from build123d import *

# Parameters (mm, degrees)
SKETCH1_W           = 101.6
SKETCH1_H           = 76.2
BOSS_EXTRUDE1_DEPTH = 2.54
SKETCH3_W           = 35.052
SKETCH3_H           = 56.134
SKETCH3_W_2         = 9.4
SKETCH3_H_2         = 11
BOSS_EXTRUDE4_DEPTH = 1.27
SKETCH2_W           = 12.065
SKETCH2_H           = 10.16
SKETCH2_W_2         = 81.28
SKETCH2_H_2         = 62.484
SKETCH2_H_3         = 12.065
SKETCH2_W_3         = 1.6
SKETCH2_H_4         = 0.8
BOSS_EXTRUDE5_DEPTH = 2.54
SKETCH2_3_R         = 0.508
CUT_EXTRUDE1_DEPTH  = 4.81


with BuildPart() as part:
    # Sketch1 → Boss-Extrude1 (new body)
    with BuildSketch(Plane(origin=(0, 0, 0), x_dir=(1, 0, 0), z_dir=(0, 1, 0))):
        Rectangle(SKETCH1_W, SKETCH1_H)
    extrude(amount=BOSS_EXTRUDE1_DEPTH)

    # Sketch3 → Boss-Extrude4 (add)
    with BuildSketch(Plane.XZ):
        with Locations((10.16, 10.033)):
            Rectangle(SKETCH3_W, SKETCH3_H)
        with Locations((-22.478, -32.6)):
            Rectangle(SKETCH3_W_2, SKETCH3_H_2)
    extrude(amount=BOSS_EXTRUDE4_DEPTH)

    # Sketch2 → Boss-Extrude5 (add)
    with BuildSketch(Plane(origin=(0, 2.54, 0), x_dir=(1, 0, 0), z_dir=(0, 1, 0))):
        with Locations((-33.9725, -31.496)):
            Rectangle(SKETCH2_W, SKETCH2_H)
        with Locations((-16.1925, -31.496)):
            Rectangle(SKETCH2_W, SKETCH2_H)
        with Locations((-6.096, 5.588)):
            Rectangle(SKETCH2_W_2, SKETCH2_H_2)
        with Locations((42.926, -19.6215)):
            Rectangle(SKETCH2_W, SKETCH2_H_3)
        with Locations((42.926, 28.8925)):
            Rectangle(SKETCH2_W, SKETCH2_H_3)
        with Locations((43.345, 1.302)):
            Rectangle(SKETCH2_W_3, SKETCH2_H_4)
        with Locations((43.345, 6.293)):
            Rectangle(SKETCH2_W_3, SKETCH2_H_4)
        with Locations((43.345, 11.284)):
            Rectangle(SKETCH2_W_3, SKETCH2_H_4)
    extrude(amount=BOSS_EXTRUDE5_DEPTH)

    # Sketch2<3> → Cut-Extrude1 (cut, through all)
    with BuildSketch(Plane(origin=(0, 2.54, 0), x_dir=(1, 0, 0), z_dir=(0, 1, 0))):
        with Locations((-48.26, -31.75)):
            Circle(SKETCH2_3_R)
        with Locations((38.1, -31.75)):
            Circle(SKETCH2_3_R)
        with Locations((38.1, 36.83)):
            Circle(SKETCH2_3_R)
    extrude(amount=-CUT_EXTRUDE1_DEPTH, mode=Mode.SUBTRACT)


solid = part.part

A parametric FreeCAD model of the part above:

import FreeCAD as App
import Part
import Sketcher

V = App.Vector
Q = App.Units.Quantity

doc = App.newDocument("Part")
body = doc.addObject("PartDesign::Body", "Body")

sketch1 = body.newObject("Sketcher::SketchObject", "Sketch")
sketch1.AttachmentSupport = (doc.getObject("XZ_Plane"), [""])
sketch1.MapMode = "FlatFace"
sketch1.addGeometry([
    Part.LineSegment(V(-51, -38, 0), V(-51, 38, 0)),
    Part.LineSegment(V(-51, 38, 0), V(51, 38, 0)),
    Part.LineSegment(V(51, 38, 0), V(51, -38, 0)),
    Part.LineSegment(V(51, -38, 0), V(-51, -38, 0)),
], False)
sketch1.addConstraint([
    Sketcher.Constraint("Coincident", 0, 2, 1, 1),
    Sketcher.Constraint("Coincident", 1, 2, 2, 1),
    Sketcher.Constraint("Coincident", 2, 2, 3, 1),
    Sketcher.Constraint("Coincident", 3, 2, 0, 1),
    Sketcher.Constraint("Vertical", 0),
    Sketcher.Constraint("Horizontal", 1),
    Sketcher.Constraint("Vertical", 2),
    Sketcher.Constraint("Horizontal", 3),
    Sketcher.Constraint("Symmetric", 0, 2, 2, 2, -1, 1),
    Sketcher.Constraint("DistanceX", 1, 1, 1, 2, Q("4 in")),
    Sketcher.Constraint("DistanceY", 0, 1, 0, 2, Q("3 in")),
])
pad1 = body.newObject("PartDesign::Pad", "Pad")
pad1.Profile = sketch1
pad1.Length = Q("0.1 in")
pad1.Reversed = True

sketch2 = body.newObject("Sketcher::SketchObject", "Sketch001")
sketch2.AttachmentSupport = (doc.getObject("XZ_Plane"), [""])
sketch2.MapMode = "FlatFace"
sketch2.addGeometry([
    Part.LineSegment(V(-7, 38, 0), V(-7, -18, 0)),
    Part.LineSegment(V(-7, -18, 0), V(28, -18, 0)),
    Part.LineSegment(V(28, -18, 0), V(28, 38, 0)),
    Part.LineSegment(V(28, 38, 0), V(-7, 38, 0)),
    Part.LineSegment(V(-27, -27, 0), V(-27, -38, 0)),
    Part.LineSegment(V(-27, -38, 0), V(-18, -38, 0)),
    Part.LineSegment(V(-18, -38, 0), V(-18, -27, 0)),
    Part.LineSegment(V(-18, -27, 0), V(-27, -27, 0)),
], False)
sketch2.addConstraint([
    Sketcher.Constraint("Coincident", 0, 2, 1, 1),
    Sketcher.Constraint("Coincident", 1, 2, 2, 1),
    Sketcher.Constraint("Coincident", 2, 2, 3, 1),
    Sketcher.Constraint("Coincident", 3, 2, 0, 1),
    Sketcher.Constraint("Coincident", 4, 2, 5, 1),
    Sketcher.Constraint("Coincident", 5, 2, 6, 1),
    Sketcher.Constraint("Coincident", 6, 2, 7, 1),
    Sketcher.Constraint("Coincident", 7, 2, 4, 1),
    Sketcher.Constraint("Vertical", 0),
    Sketcher.Constraint("Horizontal", 1),
    Sketcher.Constraint("Vertical", 2),
    Sketcher.Constraint("Horizontal", 3),
    Sketcher.Constraint("Vertical", 4),
    Sketcher.Constraint("Horizontal", 5),
    Sketcher.Constraint("Vertical", 6),
    Sketcher.Constraint("Horizontal", 7),
    Sketcher.Constraint("DistanceY", 4, 2, 3, 2, Q("3 in")),
    Sketcher.Constraint("DistanceX", 1, 1, 1, 2, Q("1.38 in")),
    Sketcher.Constraint("DistanceY", 0, 2, 0, 1, Q("2.21 in")),
    Sketcher.Constraint("DistanceY", -1, 1, 2, 2, Q("1.5 in")),
    Sketcher.Constraint("DistanceX", 0, 2, -1, 1, Q("0.29 in")),
    Sketcher.Constraint("DistanceX", 4, 2, -1, 1, Q("1.07 in")),
    Sketcher.Constraint("DistanceX", 5, 1, 5, 2, Q("9.4 mm")),
    Sketcher.Constraint("DistanceY", 4, 2, 4, 1, Q("11 mm")),
])
pad2 = body.newObject("PartDesign::Pad", "Pad001")
pad2.Profile = sketch2
pad2.Length = Q("0.05 in")

sketch3 = body.newObject("Sketcher::SketchObject", "Sketch002")
sketch3.AttachmentSupport = (doc.getObject("XZ_Plane"), [""])
sketch3.MapMode = "FlatFace"
sketch3.AttachmentOffset = App.Placement(V(0, 0, -0.1 * 25.4), App.Rotation())
sketch3.addGeometry([
    Part.LineSegment(V(-40, 26.4, 0), V(-40, 36.6, 0)),
    Part.LineSegment(V(-40, 36.6, 0), V(-27.9, 36.6, 0)),
    Part.LineSegment(V(-27.9, 36.6, 0), V(-27.9, 26.4, 0)),
    Part.LineSegment(V(-27.9, 26.4, 0), V(-40, 26.4, 0)),
    Part.LineSegment(V(-22.2, 26.4, 0), V(-22.2, 36.6, 0)),
    Part.LineSegment(V(-22.2, 36.6, 0), V(-10.2, 36.6, 0)),
    Part.LineSegment(V(-10.2, 36.6, 0), V(-10.2, 26.4, 0)),
    Part.LineSegment(V(-10.2, 26.4, 0), V(-22.2, 26.4, 0)),
    Part.LineSegment(V(-46.7, -36.8, 0), V(-46.7, 25.7, 0)),
    Part.LineSegment(V(-46.7, 25.7, 0), V(34.5, 25.7, 0)),
    Part.LineSegment(V(34.5, 25.7, 0), V(34.5, -36.8, 0)),
    Part.LineSegment(V(34.5, -36.8, 0), V(-46.7, -36.8, 0)),
    Part.LineSegment(V(36.9, 13.6, 0), V(36.9, 25.7, 0)),
    Part.LineSegment(V(36.9, 25.7, 0), V(49, 25.7, 0)),
    Part.LineSegment(V(49, 25.7, 0), V(49, 13.6, 0)),
    Part.LineSegment(V(49, 13.6, 0), V(36.9, 13.6, 0)),
    Part.LineSegment(V(36.9, -34.9, 0), V(36.9, -22.9, 0)),
    Part.LineSegment(V(36.9, -22.9, 0), V(49, -22.9, 0)),
    Part.LineSegment(V(49, -22.9, 0), V(49, -34.9, 0)),
    Part.LineSegment(V(49, -34.9, 0), V(36.9, -34.9, 0)),
    Part.LineSegment(V(42.5, -1.7, 0), V(42.5, -0.9, 0)),
    Part.LineSegment(V(42.5, -0.9, 0), V(44.1, -0.9, 0)),
    Part.LineSegment(V(44.1, -0.9, 0), V(44.1, -1.7, 0)),
    Part.LineSegment(V(44.1, -1.7, 0), V(42.5, -1.7, 0)),
    Part.LineSegment(V(42.5, -6.7, 0), V(42.5, -5.9, 0)),
    Part.LineSegment(V(42.5, -5.9, 0), V(44.1, -5.9, 0)),
    Part.LineSegment(V(44.1, -5.9, 0), V(44.1, -6.7, 0)),
    Part.LineSegment(V(44.1, -6.7, 0), V(42.5, -6.7, 0)),
    Part.LineSegment(V(42.5, -11.7, 0), V(42.5, -10.9, 0)),
    Part.LineSegment(V(42.5, -10.9, 0), V(44.1, -10.9, 0)),
    Part.LineSegment(V(44.1, -10.9, 0), V(44.1, -11.7, 0)),
    Part.LineSegment(V(44.1, -11.7, 0), V(42.5, -11.7, 0)),
], False)
sketch3.addConstraint([
    Sketcher.Constraint("Coincident", 0, 2, 1, 1),
    Sketcher.Constraint("Coincident", 1, 2, 2, 1),
    Sketcher.Constraint("Coincident", 2, 2, 3, 1),
    Sketcher.Constraint("Coincident", 3, 2, 0, 1),
    Sketcher.Constraint("Coincident", 4, 2, 5, 1),
    Sketcher.Constraint("Coincident", 5, 2, 6, 1),
    Sketcher.Constraint("Coincident", 6, 2, 7, 1),
    Sketcher.Constraint("Coincident", 7, 2, 4, 1),
    Sketcher.Constraint("Coincident", 8, 2, 9, 1),
    Sketcher.Constraint("Coincident", 9, 2, 10, 1),
    Sketcher.Constraint("Coincident", 10, 2, 11, 1),
    Sketcher.Constraint("Coincident", 11, 2, 8, 1),
    Sketcher.Constraint("Coincident", 12, 2, 13, 1),
    Sketcher.Constraint("Coincident", 13, 2, 14, 1),
    Sketcher.Constraint("Coincident", 14, 2, 15, 1),
    Sketcher.Constraint("Coincident", 15, 2, 12, 1),
    Sketcher.Constraint("Coincident", 16, 2, 17, 1),
    Sketcher.Constraint("Coincident", 17, 2, 18, 1),
    Sketcher.Constraint("Coincident", 18, 2, 19, 1),
    Sketcher.Constraint("Coincident", 19, 2, 16, 1),
    Sketcher.Constraint("Coincident", 20, 2, 21, 1),
    Sketcher.Constraint("Coincident", 21, 2, 22, 1),
    Sketcher.Constraint("Coincident", 22, 2, 23, 1),
    Sketcher.Constraint("Coincident", 23, 2, 20, 1),
    Sketcher.Constraint("Coincident", 24, 2, 25, 1),
    Sketcher.Constraint("Coincident", 25, 2, 26, 1),
    Sketcher.Constraint("Coincident", 26, 2, 27, 1),
    Sketcher.Constraint("Coincident", 27, 2, 24, 1),
    Sketcher.Constraint("Coincident", 28, 2, 29, 1),
    Sketcher.Constraint("Coincident", 29, 2, 30, 1),
    Sketcher.Constraint("Coincident", 30, 2, 31, 1),
    Sketcher.Constraint("Coincident", 31, 2, 28, 1),
    Sketcher.Constraint("Vertical", 0),
    Sketcher.Constraint("Horizontal", 1),
    Sketcher.Constraint("Vertical", 2),
    Sketcher.Constraint("Horizontal", 3),
    Sketcher.Constraint("Vertical", 4),
    Sketcher.Constraint("Horizontal", 5),
    Sketcher.Constraint("Vertical", 6),
    Sketcher.Constraint("Horizontal", 7),
    Sketcher.Constraint("Vertical", 8),
    Sketcher.Constraint("Horizontal", 9),
    Sketcher.Constraint("Vertical", 10),
    Sketcher.Constraint("Horizontal", 11),
    Sketcher.Constraint("Vertical", 12),
    Sketcher.Constraint("Horizontal", 13),
    Sketcher.Constraint("Vertical", 14),
    Sketcher.Constraint("Horizontal", 15),
    Sketcher.Constraint("Vertical", 16),
    Sketcher.Constraint("Horizontal", 17),
    Sketcher.Constraint("Vertical", 18),
    Sketcher.Constraint("Horizontal", 19),
    Sketcher.Constraint("Vertical", 20),
    Sketcher.Constraint("Horizontal", 21),
    Sketcher.Constraint("Vertical", 22),
    Sketcher.Constraint("Horizontal", 23),
    Sketcher.Constraint("Vertical", 24),
    Sketcher.Constraint("Horizontal", 25),
    Sketcher.Constraint("Vertical", 26),
    Sketcher.Constraint("Horizontal", 27),
    Sketcher.Constraint("Vertical", 28),
    Sketcher.Constraint("Horizontal", 29),
    Sketcher.Constraint("Vertical", 30),
    Sketcher.Constraint("Horizontal", 31),
    Sketcher.Constraint("Horizontal", 1, 2, 4, 2),
    Sketcher.Constraint("Horizontal", 3, 2, 6, 2),
    Sketcher.Constraint("Horizontal", 9, 2, 12, 2),
    Sketcher.Constraint("Vertical", 15, 2, 16, 2),
    Sketcher.Constraint("Vertical", 14, 2, 17, 2),
    Sketcher.Constraint("Vertical", 23, 2, 24, 2),
    Sketcher.Constraint("Vertical", 22, 2, 25, 2),
    Sketcher.Constraint("Vertical", 27, 2, 28, 2),
    Sketcher.Constraint("Vertical", 26, 2, 29, 2),
    Sketcher.Constraint("Equal", 3, 5),
    Sketcher.Constraint("Equal", 7, 13),
    Sketcher.Constraint("Equal", 19, 12),
    Sketcher.Constraint("Equal", 14, 16),
    Sketcher.Constraint("Equal", 22, 24),
    Sketcher.Constraint("Equal", 26, 28),
    Sketcher.Constraint("DistanceX", 9, 1, 9, 2, Q("3.2 in")),
    Sketcher.Constraint("DistanceY", 0, 1, 0, 2, Q("0.4 in")),
    Sketcher.Constraint("DistanceY", 8, 1, 8, 2, Q("2.46 in")),
    Sketcher.Constraint("DistanceX", 1, 2, -1, 1, Q("1.1 in")),
    Sketcher.Constraint("DistanceX", 5, 2, -1, 1, Q("0.4 in")),
    Sketcher.Constraint("DistanceY", 16, 2, -1, 1, Q("0.9 in")),
    Sketcher.Constraint("DistanceX", 1, 1, 1, 2, Q("0.475 in")),
    Sketcher.Constraint("DistanceY", -1, 1, 0, 2, Q("1.44 in")),
    Sketcher.Constraint("DistanceX", 8, 2, -1, 1, Q("1.84 in")),
    Sketcher.Constraint("DistanceY", -1, 1, 8, 2, Q("1.01 in")),
    Sketcher.Constraint("DistanceY", 30, 2, -1, 1, Q("0.46 in")),
    Sketcher.Constraint("DistanceX", -1, 1, 20, 2, Q("1.675 in")),
    Sketcher.Constraint("DistanceY", 24, 2, 23, 2, Q("0.165 in")),
    Sketcher.Constraint("DistanceY", 28, 2, 27, 2, Q("0.165 in")),
    Sketcher.Constraint("DistanceX", 21, 1, 21, 2, Q("1.6 mm")),
    Sketcher.Constraint("DistanceY", 20, 1, 20, 2, Q("0.8 mm")),
    Sketcher.Constraint("DistanceX", -1, 1, 12, 2, Q("1.4525 in")),
])
pad3 = body.newObject("PartDesign::Pad", "Pad002")
pad3.Profile = sketch3
pad3.Length = Q("0.1 in")
pad3.Reversed = True

sketch4 = body.newObject("Sketcher::SketchObject", "Sketch003")
sketch4.AttachmentSupport = (doc.getObject("XZ_Plane"), [""])
sketch4.MapMode = "FlatFace"
sketch4.AttachmentOffset = App.Placement(V(0, 0, -0.1 * 25.4), App.Rotation())
sketch4.addGeometry([
    Part.Circle(V(-48.3, 31.8, 0), V(0, 0, 1), 0.5),
    Part.Circle(V(38.1, 31.8, 0), V(0, 0, 1), 0.5),
    Part.Circle(V(38.1, -36.8, 0), V(0, 0, 1), 0.5),
], False)
sketch4.addConstraint([
    Sketcher.Constraint("Equal", 0, 1),
    Sketcher.Constraint("Equal", 1, 2),
    Sketcher.Constraint("Horizontal", 0, 3, 1, 3),
    Sketcher.Constraint("Vertical", 1, 3, 2, 3),
    Sketcher.Constraint("Diameter", 0, Q("0.04 in")),
    Sketcher.Constraint("DistanceX", 0, 3, -1, 1, Q("1.9 in")),
    Sketcher.Constraint("DistanceX", -1, 1, 1, 3, Q("1.5 in")),
    Sketcher.Constraint("DistanceY", 2, 3, 1, 3, Q("2.7 in")),
    Sketcher.Constraint("DistanceY", -1, 1, 0, 3, Q("1.25 in")),
])
pocket1 = body.newObject("PartDesign::Pocket", "Pocket")
pocket1.Profile = sketch4
pocket1.Type = "ThroughAll"
pocket1.Reversed = True

doc.recompute()
